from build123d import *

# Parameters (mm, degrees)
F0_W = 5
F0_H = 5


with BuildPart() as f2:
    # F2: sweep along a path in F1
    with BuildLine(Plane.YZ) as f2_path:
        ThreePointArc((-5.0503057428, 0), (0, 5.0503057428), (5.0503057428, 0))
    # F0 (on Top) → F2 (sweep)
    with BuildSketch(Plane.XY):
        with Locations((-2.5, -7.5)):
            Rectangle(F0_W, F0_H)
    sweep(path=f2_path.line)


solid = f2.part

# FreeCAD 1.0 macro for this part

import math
import FreeCAD as App
import Part
import Sketcher
from FreeCAD import Vector

doc = App.newDocument("Part")
params = doc.addObject("Spreadsheet::Sheet", "Params")
for row, (alias, value) in enumerate([
    ("sketch1_width", "5 mm"),
], start=1):
    params.set(f"A{row}", alias)
    params.set(f"B{row}", "=" + value)
    params.setAlias(f"B{row}", alias)

body = doc.addObject("PartDesign::Body", "Body")

sketch1 = body.newObject("Sketcher::SketchObject", "Sketch")
sketch1.AttachmentSupport = (doc.getObject("XY_Plane"), [""])
sketch1.MapMode = "FlatFace"
sketch1.addGeometry([
    Part.LineSegment(Vector(-5, -5, 0), Vector(-5, -10, 0)),
    Part.LineSegment(Vector(-5, -10, 0), Vector(0, -10, 0)),
    Part.LineSegment(Vector(0, -10, 0), Vector(0, -5, 0)),
    Part.LineSegment(Vector(0, -5, 0), Vector(-5, -5, 0)),
], False)
sketch1.addConstraint([
    Sketcher.Constraint("Coincident", 0, 2, 1, 1),
    Sketcher.Constraint("Coincident", 1, 2, 2, 1),
    Sketcher.Constraint("Coincident", 2, 2, 3, 1),
    Sketcher.Constraint("Coincident", 3, 2, 0, 1),
    Sketcher.Constraint("Vertical", 0),
    Sketcher.Constraint("Horizontal", 1),
    Sketcher.Constraint("Vertical", 2),
    Sketcher.Constraint("Horizontal", 3),
    Sketcher.Constraint("PointOnObject", 1, 2, -2),
    Sketcher.Constraint("Equal", 3, 0),
    Sketcher.Constraint("DistanceX", 1, 1, 1, 2, 5.0),
    Sketcher.Constraint("DistanceY", 0, 2, -1, 1, 10.0),
])
sketch1.setExpression("Constraints[10]", "Params.sketch1_width")

sketch2 = body.newObject("Sketcher::SketchObject", "Sketch001")
sketch2.AttachmentSupport = (doc.getObject("YZ_Plane"), [""])
sketch2.MapMode = "FlatFace"
sketch2.addGeometry(Part.ArcOfCircle(Part.Circle(Vector(0, 0, 0), Vector(0, 0, 1), 5), math.radians(0), math.radians(180)), False)
sketch2.addConstraint([
    Sketcher.Constraint("Coincident", 0, 3, -1, 1),
    Sketcher.Constraint("PointOnObject", 0, 1, -1),
    Sketcher.Constraint("PointOnObject", 0, 2, -1),
    Sketcher.Constraint("Radius", 0, 5.050306),
])
doc.recompute()

additivepipe = body.newObject("PartDesign::AdditivePipe", "AdditivePipe")
additivepipe.Profile = sketch1
additivepipe.Spine = (sketch2, ["Edge1"])

doc.recompute()
